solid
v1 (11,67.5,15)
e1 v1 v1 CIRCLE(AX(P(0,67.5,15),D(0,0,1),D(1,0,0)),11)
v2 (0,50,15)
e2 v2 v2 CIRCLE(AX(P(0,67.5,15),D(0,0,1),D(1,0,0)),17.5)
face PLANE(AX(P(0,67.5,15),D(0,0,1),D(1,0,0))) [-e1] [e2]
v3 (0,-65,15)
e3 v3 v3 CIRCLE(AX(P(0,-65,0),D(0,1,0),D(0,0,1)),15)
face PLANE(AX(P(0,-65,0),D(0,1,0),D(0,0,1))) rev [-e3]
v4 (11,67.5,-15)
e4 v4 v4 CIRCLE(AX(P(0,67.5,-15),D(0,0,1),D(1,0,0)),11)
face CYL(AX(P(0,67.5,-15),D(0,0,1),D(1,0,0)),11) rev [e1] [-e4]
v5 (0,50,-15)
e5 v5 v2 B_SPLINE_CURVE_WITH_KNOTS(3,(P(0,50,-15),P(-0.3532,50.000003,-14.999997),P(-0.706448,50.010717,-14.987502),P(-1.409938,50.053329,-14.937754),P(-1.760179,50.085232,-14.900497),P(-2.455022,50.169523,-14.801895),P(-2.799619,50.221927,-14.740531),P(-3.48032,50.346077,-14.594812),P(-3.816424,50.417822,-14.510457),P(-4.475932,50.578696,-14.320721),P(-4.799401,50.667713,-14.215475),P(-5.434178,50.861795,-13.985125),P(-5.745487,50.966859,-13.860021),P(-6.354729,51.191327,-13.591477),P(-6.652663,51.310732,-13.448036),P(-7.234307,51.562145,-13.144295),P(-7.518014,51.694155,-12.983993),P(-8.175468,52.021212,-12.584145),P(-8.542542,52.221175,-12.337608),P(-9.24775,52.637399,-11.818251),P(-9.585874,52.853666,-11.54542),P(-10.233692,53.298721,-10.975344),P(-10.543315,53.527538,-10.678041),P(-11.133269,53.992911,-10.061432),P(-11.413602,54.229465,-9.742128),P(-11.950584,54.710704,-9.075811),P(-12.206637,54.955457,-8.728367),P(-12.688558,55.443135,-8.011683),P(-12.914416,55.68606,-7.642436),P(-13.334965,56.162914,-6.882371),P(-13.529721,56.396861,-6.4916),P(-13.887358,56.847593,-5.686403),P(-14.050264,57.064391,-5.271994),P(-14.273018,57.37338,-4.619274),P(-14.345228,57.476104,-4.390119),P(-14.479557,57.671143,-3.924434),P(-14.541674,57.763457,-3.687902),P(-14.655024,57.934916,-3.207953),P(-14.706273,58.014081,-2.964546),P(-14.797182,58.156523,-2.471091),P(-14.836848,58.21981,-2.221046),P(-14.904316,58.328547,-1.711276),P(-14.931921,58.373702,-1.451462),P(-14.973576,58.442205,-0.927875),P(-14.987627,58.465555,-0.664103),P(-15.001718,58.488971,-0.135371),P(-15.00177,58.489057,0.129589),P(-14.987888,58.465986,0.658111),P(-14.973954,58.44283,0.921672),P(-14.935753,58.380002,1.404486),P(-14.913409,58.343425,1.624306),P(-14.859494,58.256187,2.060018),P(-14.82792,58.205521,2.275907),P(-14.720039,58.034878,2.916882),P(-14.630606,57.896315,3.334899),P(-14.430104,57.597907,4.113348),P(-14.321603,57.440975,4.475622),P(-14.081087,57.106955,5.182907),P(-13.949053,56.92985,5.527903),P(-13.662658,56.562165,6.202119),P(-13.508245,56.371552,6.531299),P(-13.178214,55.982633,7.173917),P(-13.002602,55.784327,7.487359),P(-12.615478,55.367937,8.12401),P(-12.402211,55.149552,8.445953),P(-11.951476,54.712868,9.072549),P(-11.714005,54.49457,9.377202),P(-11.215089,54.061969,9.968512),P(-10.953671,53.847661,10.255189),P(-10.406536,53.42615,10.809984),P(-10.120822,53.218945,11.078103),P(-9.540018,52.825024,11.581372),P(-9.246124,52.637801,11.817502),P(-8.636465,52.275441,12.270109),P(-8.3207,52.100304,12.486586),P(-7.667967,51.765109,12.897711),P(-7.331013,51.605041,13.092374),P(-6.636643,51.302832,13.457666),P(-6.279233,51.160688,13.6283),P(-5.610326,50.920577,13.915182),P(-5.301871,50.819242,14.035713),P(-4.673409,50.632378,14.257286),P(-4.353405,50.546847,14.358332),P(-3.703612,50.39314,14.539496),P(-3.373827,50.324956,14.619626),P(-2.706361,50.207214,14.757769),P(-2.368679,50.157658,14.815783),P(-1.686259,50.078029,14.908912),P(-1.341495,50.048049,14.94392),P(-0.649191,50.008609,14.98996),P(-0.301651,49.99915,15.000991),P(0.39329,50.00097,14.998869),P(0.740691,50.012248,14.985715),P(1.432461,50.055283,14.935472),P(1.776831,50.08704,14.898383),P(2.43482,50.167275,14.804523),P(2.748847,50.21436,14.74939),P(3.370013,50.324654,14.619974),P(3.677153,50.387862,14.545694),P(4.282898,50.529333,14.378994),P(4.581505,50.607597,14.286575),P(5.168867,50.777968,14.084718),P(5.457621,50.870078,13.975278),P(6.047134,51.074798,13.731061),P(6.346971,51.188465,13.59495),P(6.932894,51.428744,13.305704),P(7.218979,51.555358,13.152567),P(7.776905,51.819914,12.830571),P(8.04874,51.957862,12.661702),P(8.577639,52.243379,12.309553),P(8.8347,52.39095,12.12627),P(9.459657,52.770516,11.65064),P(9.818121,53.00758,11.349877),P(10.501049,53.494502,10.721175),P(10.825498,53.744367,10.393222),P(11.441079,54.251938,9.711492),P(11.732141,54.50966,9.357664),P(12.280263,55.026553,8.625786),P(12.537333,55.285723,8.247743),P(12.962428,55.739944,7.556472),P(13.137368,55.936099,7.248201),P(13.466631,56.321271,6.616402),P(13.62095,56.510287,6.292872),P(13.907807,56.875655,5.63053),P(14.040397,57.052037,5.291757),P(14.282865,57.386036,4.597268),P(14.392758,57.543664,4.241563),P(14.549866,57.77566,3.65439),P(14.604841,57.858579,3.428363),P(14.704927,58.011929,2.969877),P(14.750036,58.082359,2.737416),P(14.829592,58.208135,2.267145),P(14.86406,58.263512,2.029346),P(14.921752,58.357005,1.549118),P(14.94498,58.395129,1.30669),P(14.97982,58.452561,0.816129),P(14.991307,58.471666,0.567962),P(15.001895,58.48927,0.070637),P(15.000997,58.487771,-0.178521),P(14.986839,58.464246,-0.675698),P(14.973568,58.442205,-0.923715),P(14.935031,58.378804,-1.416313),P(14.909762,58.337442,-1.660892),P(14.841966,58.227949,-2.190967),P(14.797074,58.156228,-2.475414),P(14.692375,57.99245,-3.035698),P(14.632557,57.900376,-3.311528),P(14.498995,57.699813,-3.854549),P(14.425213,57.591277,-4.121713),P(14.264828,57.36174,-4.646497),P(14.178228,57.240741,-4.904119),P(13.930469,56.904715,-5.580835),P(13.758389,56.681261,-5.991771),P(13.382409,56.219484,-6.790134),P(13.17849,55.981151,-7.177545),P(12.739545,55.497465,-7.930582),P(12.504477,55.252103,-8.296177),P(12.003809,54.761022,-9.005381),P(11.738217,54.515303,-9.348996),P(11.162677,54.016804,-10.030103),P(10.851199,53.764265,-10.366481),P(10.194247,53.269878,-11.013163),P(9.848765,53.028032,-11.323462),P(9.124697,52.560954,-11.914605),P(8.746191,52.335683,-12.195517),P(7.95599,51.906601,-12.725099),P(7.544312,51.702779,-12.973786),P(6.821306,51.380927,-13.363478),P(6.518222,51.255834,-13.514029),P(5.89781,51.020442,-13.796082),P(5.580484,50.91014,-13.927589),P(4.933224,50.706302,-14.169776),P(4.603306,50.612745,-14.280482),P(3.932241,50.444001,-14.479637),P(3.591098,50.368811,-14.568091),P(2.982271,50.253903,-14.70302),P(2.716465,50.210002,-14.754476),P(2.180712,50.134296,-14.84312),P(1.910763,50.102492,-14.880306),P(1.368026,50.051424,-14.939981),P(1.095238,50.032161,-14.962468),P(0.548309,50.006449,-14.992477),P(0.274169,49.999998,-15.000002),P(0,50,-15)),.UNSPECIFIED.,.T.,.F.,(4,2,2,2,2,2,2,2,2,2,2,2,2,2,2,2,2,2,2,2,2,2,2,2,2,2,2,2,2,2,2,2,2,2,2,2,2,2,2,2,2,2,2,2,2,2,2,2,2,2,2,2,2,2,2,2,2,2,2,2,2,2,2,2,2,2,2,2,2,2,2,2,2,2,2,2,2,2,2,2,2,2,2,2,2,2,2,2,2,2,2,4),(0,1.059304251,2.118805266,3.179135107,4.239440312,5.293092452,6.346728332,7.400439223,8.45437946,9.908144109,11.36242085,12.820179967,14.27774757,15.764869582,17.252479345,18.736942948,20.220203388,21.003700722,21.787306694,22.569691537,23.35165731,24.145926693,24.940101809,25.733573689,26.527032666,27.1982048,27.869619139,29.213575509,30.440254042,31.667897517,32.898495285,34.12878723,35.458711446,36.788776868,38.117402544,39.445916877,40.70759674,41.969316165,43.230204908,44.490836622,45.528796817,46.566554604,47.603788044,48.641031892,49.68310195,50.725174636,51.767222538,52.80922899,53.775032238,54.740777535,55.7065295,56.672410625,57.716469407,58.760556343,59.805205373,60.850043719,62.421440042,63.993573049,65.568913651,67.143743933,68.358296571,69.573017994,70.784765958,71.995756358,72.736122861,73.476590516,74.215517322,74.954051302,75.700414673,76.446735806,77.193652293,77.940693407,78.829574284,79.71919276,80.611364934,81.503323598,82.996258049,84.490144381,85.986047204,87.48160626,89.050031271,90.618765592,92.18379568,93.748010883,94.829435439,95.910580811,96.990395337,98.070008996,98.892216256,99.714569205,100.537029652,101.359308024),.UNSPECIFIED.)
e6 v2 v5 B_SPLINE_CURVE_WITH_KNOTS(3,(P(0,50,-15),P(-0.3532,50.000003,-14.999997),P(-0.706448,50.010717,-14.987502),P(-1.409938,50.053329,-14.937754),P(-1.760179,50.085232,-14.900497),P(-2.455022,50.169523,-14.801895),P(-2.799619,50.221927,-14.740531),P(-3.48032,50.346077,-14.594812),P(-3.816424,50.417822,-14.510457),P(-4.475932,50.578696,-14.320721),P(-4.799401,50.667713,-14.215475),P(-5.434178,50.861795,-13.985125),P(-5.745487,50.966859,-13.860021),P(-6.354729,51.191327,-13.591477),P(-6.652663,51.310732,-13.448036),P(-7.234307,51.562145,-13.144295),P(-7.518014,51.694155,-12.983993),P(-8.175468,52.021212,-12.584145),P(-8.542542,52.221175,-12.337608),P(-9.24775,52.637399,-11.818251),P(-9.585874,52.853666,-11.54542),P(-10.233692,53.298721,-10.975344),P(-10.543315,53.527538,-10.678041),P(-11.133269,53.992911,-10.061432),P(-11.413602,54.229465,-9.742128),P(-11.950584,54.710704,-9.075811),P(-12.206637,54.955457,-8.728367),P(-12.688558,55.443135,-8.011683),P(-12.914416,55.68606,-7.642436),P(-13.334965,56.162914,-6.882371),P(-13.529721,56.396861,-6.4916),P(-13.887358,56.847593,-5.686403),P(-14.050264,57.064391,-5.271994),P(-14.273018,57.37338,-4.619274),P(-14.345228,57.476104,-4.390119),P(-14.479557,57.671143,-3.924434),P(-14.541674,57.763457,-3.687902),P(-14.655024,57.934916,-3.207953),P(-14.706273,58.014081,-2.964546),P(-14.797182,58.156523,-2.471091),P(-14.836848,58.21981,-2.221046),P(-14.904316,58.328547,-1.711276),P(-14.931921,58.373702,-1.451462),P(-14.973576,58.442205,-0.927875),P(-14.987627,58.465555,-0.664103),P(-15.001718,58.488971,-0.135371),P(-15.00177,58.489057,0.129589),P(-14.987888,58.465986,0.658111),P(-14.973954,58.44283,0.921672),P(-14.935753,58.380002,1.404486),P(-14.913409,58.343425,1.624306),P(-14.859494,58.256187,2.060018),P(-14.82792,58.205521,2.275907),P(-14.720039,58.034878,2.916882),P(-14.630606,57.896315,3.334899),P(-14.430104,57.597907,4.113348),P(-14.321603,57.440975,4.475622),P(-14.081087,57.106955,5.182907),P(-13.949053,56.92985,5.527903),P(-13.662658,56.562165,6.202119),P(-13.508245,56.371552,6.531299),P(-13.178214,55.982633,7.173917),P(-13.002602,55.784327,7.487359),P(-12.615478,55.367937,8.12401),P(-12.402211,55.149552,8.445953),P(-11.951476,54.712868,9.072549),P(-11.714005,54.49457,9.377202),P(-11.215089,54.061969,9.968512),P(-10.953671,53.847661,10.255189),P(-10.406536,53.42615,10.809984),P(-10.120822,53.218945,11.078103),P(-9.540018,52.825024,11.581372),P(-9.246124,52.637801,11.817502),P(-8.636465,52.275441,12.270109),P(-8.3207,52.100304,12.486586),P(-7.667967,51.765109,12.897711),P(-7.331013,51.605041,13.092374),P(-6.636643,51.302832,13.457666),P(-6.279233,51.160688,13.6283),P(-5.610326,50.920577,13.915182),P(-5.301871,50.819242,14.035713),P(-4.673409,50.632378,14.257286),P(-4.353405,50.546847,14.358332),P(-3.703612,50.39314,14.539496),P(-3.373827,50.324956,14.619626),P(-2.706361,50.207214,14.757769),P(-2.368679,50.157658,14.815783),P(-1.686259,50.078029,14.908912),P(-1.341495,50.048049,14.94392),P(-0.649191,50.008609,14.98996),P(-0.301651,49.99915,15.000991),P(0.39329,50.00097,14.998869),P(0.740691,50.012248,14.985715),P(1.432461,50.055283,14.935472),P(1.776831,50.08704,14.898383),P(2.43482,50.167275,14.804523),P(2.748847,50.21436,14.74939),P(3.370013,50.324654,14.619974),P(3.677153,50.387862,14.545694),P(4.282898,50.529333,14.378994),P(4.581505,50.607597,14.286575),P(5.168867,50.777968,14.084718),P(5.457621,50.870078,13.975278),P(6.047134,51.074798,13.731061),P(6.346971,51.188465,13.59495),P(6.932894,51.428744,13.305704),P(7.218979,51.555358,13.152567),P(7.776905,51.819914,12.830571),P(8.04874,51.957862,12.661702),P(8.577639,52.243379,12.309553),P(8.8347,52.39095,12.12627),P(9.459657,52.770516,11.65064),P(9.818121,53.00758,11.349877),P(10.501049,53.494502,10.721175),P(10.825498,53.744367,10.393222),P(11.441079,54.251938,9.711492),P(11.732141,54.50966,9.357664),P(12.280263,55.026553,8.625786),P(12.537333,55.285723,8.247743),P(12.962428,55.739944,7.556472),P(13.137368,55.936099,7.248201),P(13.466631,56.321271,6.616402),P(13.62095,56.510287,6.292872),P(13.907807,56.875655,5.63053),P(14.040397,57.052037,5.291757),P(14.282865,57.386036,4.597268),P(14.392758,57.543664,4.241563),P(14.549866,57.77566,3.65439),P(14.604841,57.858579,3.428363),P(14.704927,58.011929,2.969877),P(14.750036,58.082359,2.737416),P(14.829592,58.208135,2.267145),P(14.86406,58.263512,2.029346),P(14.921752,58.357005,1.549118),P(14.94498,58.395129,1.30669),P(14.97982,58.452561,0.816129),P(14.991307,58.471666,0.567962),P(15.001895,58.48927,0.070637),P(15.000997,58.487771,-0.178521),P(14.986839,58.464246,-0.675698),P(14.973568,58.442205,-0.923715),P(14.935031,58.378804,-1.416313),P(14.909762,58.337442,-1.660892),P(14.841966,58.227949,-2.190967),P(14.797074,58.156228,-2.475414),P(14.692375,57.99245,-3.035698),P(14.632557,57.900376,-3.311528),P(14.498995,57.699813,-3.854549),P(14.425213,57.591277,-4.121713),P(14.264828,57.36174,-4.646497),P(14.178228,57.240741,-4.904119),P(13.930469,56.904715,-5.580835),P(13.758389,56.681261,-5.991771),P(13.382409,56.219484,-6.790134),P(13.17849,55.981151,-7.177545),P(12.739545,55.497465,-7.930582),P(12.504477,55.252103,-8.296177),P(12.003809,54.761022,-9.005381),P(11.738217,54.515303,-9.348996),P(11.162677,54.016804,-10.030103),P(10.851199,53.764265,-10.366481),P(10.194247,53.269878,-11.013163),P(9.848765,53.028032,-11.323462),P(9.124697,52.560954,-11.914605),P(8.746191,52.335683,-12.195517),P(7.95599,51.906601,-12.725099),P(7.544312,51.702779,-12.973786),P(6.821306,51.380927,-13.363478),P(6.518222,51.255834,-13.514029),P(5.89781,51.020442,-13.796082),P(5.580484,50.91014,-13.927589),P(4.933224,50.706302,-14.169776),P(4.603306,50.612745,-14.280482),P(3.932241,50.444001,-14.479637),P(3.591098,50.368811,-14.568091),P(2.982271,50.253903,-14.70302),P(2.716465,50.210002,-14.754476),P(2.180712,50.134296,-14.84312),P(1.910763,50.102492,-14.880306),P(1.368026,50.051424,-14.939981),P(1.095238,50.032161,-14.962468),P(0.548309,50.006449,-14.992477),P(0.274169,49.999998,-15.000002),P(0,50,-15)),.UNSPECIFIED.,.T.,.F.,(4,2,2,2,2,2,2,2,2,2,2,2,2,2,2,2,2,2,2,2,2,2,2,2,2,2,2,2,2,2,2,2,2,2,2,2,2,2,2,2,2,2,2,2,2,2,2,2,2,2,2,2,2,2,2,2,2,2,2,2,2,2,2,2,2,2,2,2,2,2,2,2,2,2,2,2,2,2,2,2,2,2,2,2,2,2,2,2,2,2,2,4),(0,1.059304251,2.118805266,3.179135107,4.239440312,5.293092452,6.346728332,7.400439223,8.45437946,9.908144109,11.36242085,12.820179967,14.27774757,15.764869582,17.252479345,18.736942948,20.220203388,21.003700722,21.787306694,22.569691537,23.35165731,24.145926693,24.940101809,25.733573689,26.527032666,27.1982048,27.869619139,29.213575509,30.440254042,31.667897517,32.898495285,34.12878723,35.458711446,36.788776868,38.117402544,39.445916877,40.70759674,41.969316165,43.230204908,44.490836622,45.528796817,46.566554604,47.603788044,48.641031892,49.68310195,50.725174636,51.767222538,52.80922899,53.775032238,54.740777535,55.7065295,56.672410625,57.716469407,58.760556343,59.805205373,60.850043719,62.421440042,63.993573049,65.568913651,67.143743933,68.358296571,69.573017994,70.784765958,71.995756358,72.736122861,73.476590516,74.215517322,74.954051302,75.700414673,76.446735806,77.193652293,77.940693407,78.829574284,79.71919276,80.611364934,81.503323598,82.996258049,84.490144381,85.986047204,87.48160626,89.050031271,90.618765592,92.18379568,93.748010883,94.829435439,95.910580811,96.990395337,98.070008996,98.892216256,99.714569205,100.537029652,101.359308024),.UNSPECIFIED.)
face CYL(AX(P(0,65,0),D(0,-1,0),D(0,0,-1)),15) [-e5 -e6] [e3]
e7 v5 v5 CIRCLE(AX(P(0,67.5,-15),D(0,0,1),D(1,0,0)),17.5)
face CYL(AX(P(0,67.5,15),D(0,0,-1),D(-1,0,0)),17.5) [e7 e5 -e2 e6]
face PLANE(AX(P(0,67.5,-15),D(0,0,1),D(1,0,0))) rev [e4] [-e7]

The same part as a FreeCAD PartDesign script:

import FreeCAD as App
import Part
import Sketcher

doc = App.newDocument("Part")
body = doc.addObject("PartDesign::Body", "Body")

# Sketch on XZ plane
sketch1 = body.newObject("Sketcher::SketchObject", "Sketch")
sketch1.AttachmentSupport = (doc.getObject("XZ_Plane"), [""])
sketch1.MapMode = "FlatFace"
sketch1.addGeometry(Part.Circle(App.Vector(0, 0, 0), App.Vector(0, 0, 1), 15), False)
sketch1.addConstraint(Sketcher.Constraint("Coincident", 0, 3, -1, 1))
sketch1.addConstraint(Sketcher.Constraint("Diameter", 0, 30.0))
pad1 = body.newObject("PartDesign::Pad", "Pad")
pad1.Profile = sketch1
pad1.Length = 130
pad1.Midplane = True

# Sketch on XY plane
sketch2 = body.newObject("Sketcher::SketchObject", "Sketch001")
sketch2.AttachmentSupport = (doc.getObject("XY_Plane"), [""])
sketch2.MapMode = "FlatFace"
sketch2.addGeometry(Part.Circle(App.Vector(0, 68, 0), App.Vector(0, 0, 1), 18), False)
sketch2.addConstraint(Sketcher.Constraint("PointOnObject", 0, 3, -2))
sketch2.addConstraint(Sketcher.Constraint("Diameter", 0, 35.0))
sketch2.addConstraint(Sketcher.Constraint("DistanceY", -1, 1, 0, 3, 67.5))
pad2 = body.newObject("PartDesign::Pad", "Pad001")
pad2.Profile = sketch2
pad2.Length = 30
pad2.Midplane = True

# Sketch on XY plane
sketch3 = body.newObject("Sketcher::SketchObject", "Sketch002")
sketch3.AttachmentSupport = (doc.getObject("XY_Plane"), [""])
sketch3.MapMode = "FlatFace"
sketch3.addGeometry(Part.Circle(App.Vector(0, 68, 0), App.Vector(0, 0, 1), 11), False)
sketch3.addConstraint(Sketcher.Constraint("PointOnObject", 0, 3, -2))
sketch3.addConstraint(Sketcher.Constraint("Diameter", 0, 22.0))
sketch3.addConstraint(Sketcher.Constraint("DistanceY", -1, 1, 0, 3, 67.5))
pocket1 = body.newObject("PartDesign::Pocket", "Pocket")
pocket1.Profile = sketch3
pocket1.Type = "ThroughAll"
pocket1.Midplane = True

doc.recompute()
